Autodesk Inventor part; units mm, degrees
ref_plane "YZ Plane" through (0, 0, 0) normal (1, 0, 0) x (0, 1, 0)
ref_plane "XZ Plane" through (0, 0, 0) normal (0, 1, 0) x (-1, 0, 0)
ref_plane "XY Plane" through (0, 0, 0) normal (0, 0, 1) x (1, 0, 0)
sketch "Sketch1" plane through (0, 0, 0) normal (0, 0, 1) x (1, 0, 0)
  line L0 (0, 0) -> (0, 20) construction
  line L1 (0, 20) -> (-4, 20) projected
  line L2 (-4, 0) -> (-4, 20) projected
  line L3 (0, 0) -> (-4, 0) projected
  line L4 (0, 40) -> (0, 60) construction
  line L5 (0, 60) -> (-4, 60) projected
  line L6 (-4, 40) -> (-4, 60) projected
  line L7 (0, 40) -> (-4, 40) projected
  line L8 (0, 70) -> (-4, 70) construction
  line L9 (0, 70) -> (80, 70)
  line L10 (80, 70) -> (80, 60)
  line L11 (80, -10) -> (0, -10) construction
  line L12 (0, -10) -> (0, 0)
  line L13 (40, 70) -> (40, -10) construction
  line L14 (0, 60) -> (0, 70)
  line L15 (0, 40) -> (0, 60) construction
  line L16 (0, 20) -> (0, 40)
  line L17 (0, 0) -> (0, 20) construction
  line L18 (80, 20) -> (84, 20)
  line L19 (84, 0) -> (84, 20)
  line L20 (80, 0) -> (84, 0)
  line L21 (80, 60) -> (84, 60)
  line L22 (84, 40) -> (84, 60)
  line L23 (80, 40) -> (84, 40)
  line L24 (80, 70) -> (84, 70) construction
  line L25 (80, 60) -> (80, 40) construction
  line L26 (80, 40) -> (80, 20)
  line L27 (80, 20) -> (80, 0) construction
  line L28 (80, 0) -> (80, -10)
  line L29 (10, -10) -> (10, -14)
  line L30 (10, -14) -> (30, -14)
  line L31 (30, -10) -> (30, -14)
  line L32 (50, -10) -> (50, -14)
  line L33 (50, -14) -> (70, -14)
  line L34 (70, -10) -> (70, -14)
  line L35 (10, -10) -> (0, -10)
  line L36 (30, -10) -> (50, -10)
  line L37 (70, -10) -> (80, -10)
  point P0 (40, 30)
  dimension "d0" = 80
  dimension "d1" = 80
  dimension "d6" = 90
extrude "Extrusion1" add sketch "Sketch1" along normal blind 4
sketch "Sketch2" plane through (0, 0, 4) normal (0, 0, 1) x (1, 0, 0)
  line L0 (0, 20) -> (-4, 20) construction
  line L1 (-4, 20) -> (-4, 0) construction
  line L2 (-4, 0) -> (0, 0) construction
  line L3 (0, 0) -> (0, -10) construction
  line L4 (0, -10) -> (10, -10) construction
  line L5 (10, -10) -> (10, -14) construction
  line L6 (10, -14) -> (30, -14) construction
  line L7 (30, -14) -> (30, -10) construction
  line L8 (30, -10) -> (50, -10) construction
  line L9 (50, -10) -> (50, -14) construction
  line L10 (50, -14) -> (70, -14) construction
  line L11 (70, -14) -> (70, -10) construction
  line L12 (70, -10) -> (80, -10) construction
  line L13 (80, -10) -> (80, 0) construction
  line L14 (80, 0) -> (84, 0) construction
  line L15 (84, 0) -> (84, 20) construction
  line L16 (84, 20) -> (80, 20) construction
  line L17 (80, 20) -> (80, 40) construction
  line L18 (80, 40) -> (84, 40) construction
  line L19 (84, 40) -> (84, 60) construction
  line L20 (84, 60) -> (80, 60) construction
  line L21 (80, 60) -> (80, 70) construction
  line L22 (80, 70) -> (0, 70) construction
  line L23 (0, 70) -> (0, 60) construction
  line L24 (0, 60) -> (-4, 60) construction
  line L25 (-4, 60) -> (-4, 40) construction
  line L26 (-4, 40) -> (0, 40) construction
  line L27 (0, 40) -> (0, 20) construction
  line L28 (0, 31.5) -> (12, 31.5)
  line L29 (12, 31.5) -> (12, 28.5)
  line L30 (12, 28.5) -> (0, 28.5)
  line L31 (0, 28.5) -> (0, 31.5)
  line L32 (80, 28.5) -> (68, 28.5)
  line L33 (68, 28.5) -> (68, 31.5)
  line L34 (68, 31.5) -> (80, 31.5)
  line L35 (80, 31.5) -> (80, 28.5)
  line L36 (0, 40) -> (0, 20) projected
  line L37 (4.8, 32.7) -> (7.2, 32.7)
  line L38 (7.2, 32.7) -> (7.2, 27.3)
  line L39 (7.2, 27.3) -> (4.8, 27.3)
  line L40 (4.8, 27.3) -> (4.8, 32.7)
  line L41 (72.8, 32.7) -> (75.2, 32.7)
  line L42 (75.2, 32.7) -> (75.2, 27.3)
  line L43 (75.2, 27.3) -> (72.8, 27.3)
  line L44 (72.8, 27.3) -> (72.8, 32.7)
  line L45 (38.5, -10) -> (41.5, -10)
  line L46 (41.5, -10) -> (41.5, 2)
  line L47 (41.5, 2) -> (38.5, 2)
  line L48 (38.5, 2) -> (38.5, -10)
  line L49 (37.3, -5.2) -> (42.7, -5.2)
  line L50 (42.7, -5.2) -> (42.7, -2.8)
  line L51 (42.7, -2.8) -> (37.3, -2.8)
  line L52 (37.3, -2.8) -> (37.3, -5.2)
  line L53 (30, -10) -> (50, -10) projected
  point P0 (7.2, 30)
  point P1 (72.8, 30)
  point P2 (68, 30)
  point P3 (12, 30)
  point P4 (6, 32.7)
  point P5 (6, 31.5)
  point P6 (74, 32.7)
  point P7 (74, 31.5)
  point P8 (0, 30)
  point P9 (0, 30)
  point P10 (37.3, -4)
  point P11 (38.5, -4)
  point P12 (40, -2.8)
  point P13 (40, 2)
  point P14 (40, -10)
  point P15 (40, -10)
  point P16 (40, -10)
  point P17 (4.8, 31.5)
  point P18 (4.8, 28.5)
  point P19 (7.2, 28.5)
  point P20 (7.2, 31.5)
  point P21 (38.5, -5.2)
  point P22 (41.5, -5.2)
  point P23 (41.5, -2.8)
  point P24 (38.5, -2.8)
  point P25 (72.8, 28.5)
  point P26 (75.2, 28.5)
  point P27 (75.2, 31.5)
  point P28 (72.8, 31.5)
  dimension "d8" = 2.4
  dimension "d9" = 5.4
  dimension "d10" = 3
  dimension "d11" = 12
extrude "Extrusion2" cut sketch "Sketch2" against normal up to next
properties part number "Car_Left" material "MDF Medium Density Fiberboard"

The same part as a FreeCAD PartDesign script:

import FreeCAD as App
import Part
import Sketcher

doc = App.newDocument("Part")
body = doc.addObject("PartDesign::Body", "Body")

# Sketch on XY plane
sketch1 = body.newObject("Sketcher::SketchObject", "Sketch")
sketch1.AttachmentSupport = (doc.getObject("XY_Plane"), [""])
sketch1.MapMode = "FlatFace"
sketch1.addGeometry([
    Part.LineSegment(App.Vector(0, 40, 0), App.Vector(0, 20, 0)),  # 0
    Part.LineSegment(App.Vector(0, 20, 0), App.Vector(-4, 20, 0)),  # 1
    Part.LineSegment(App.Vector(-4, 20, 0), App.Vector(-4, 0, 0)),  # 2
    Part.LineSegment(App.Vector(-4, 0, 0), App.Vector(0, 0, 0)),  # 3
    Part.LineSegment(App.Vector(0, 0, 0), App.Vector(0, -10, 0)),  # 4
    Part.LineSegment(App.Vector(0, -10, 0), App.Vector(10, -10, 0)),  # 5
    Part.LineSegment(App.Vector(10, -10, 0), App.Vector(10, -14, 0)),  # 6
    Part.LineSegment(App.Vector(10, -14, 0), App.Vector(30, -14, 0)),  # 7
    Part.LineSegment(App.Vector(30, -14, 0), App.Vector(30, -10, 0)),  # 8
    Part.LineSegment(App.Vector(30, -10, 0), App.Vector(50, -10, 0)),  # 9
    Part.LineSegment(App.Vector(50, -10, 0), App.Vector(50, -14, 0)),  # 10
    Part.LineSegment(App.Vector(50, -14, 0), App.Vector(70, -14, 0)),  # 11
    Part.LineSegment(App.Vector(70, -14, 0), App.Vector(70, -10, 0)),  # 12
    Part.LineSegment(App.Vector(70, -10, 0), App.Vector(80, -10, 0)),  # 13
    Part.LineSegment(App.Vector(80, -10, 0), App.Vector(80, 0, 0)),  # 14
    Part.LineSegment(App.Vector(80, 0, 0), App.Vector(84, 0, 0)),  # 15
    Part.LineSegment(App.Vector(84, 0, 0), App.Vector(84, 20, 0)),  # 16
    Part.LineSegment(App.Vector(84, 20, 0), App.Vector(80, 20, 0)),  # 17
    Part.LineSegment(App.Vector(80, 20, 0), App.Vector(80, 40, 0)),  # 18
    Part.LineSegment(App.Vector(80, 40, 0), App.Vector(84, 40, 0)),  # 19
    Part.LineSegment(App.Vector(84, 40, 0), App.Vector(84, 60, 0)),  # 20
    Part.LineSegment(App.Vector(84, 60, 0), App.Vector(80, 60, 0)),  # 21
    Part.LineSegment(App.Vector(80, 60, 0), App.Vector(80, 70, 0)),  # 22
    Part.LineSegment(App.Vector(80, 70, 0), App.Vector(0, 70, 0)),  # 23
    Part.LineSegment(App.Vector(0, 70, 0), App.Vector(0, 60, 0)),  # 24
    Part.LineSegment(App.Vector(0, 60, 0), App.Vector(-4, 60, 0)),  # 25
    Part.LineSegment(App.Vector(-4, 60, 0), App.Vector(-4, 40, 0)),  # 26
    Part.LineSegment(App.Vector(-4, 40, 0), App.Vector(0, 40, 0)),  # 27
], False)
sketch1.addConstraint([
    Sketcher.Constraint("Coincident", 0, 2, 1, 1),
    Sketcher.Constraint("Coincident", 1, 2, 2, 1),
    Sketcher.Constraint("Coincident", 2, 2, 3, 1),
    Sketcher.Constraint("Coincident", 3, 2, 4, 1),
    Sketcher.Constraint("Coincident", 4, 2, 5, 1),
    Sketcher.Constraint("Coincident", 5, 2, 6, 1),
    Sketcher.Constraint("Coincident", 6, 2, 7, 1),
    Sketcher.Constraint("Coincident", 7, 2, 8, 1),
    Sketcher.Constraint("Coincident", 8, 2, 9, 1),
    Sketcher.Constraint("Coincident", 9, 2, 10, 1),
    Sketcher.Constraint("Coincident", 10, 2, 11, 1),
    Sketcher.Constraint("Coincident", 11, 2, 12, 1),
    Sketcher.Constraint("Coincident", 12, 2, 13, 1),
    Sketcher.Constraint("Coincident", 13, 2, 14, 1),
    Sketcher.Constraint("Coincident", 14, 2, 15, 1),
    Sketcher.Constraint("Coincident", 15, 2, 16, 1),
    Sketcher.Constraint("Coincident", 16, 2, 17, 1),
    Sketcher.Constraint("Coincident", 17, 2, 18, 1),
    Sketcher.Constraint("Coincident", 18, 2, 19, 1),
    Sketcher.Constraint("Coincident", 19, 2, 20, 1),
    Sketcher.Constraint("Coincident", 20, 2, 21, 1),
    Sketcher.Constraint("Coincident", 21, 2, 22, 1),
    Sketcher.Constraint("Coincident", 22, 2, 23, 1),
    Sketcher.Constraint("Coincident", 23, 2, 24, 1),
    Sketcher.Constraint("Coincident", 24, 2, 25, 1),
    Sketcher.Constraint("Coincident", 25, 2, 26, 1),
    Sketcher.Constraint("Coincident", 26, 2, 27, 1),
    Sketcher.Constraint("Coincident", 27, 2, 0, 1),
    Sketcher.Constraint("Vertical", 0),
    Sketcher.Constraint("Horizontal", 1),
    Sketcher.Constraint("Vertical", 2),
    Sketcher.Constraint("Horizontal", 3),
    Sketcher.Constraint("Vertical", 4),
    Sketcher.Constraint("Horizontal", 5),
    Sketcher.Constraint("Vertical", 6),
    Sketcher.Constraint("Horizontal", 7),
    Sketcher.Constraint("Vertical", 8),
    Sketcher.Constraint("Horizontal", 9),
    Sketcher.Constraint("Vertical", 10),
    Sketcher.Constraint("Horizontal", 11),
    Sketcher.Constraint("Vertical", 12),
    Sketcher.Constraint("Horizontal", 13),
    Sketcher.Constraint("Vertical", 14),
    Sketcher.Constraint("Horizontal", 15),
    Sketcher.Constraint("Vertical", 16),
    Sketcher.Constraint("Horizontal", 17),
    Sketcher.Constraint("Vertical", 18),
    Sketcher.Constraint("Horizontal", 19),
    Sketcher.Constraint("Vertical", 20),
    Sketcher.Constraint("Horizontal", 21),
    Sketcher.Constraint("Vertical", 22),
    Sketcher.Constraint("Horizontal", 23),
    Sketcher.Constraint("Vertical", 24),
    Sketcher.Constraint("Horizontal", 25),
    Sketcher.Constraint("Vertical", 26),
    Sketcher.Constraint("Horizontal", 27),
    Sketcher.Constraint("Coincident", 3, 2, -1, 1),
    Sketcher.Constraint("PointOnObject", 0, 2, -2),
    Sketcher.Constraint("PointOnObject", 14, 2, -1),
    Sketcher.Constraint("PointOnObject", 23, 2, -2),
    Sketcher.Constraint("Horizontal", 5, 2, 8, 2),
    Sketcher.Constraint("Horizontal", 7, 2, 10, 2),
    Sketcher.Constraint("Horizontal", 9, 2, 12, 2),
    Sketcher.Constraint("Horizontal", 1, 2, 16, 2),
    Sketcher.Constraint("Horizontal", 21, 2, 24, 2),
    Sketcher.Constraint("Horizontal", 19, 2, 26, 2),
    Sketcher.Constraint("Vertical", 14, 2, 17, 2),
    Sketcher.Constraint("Vertical", 16, 2, 19, 2),
    Sketcher.Constraint("Vertical", 18, 2, 21, 2),
    Sketcher.Constraint("Vertical", 2, 2, 25, 2),
    Sketcher.Constraint("Equal", 7, 9),
    Sketcher.Constraint("Equal", 9, 11),
    Sketcher.Constraint("Equal", 5, 13),
    Sketcher.Constraint("Equal", 3, 15),
    Sketcher.Constraint("Equal", 11, 0),
    Sketcher.Constraint("Equal", 0, 2),
    Sketcher.Constraint("Equal", 13, 4),
    Sketcher.Constraint("Equal", 27, 6),
    Sketcher.Constraint("Equal", 18, 20),
    Sketcher.Constraint("Equal", 14, 22),
    Sketcher.Constraint("DistanceX", 23, 2, 23, 1, 80.0),
    Sketcher.Constraint("DistanceX", 1, 2, 1, 1, 4.0),
    Sketcher.Constraint("DistanceX", 5, 1, 5, 2, 10.0),
])
pad1 = body.newObject("PartDesign::Pad", "Pad")
pad1.Profile = sketch1
pad1.Length = 4

# Sketch on XY plane
sketch2 = body.newObject("Sketcher::SketchObject", "Sketch001")
sketch2.AttachmentSupport = (doc.getObject("XY_Plane"), [""])
sketch2.MapMode = "FlatFace"
sketch2.AttachmentOffset = App.Placement(App.Vector(0, 0, 4), App.Rotation())
sketch2.addGeometry([
    Part.LineSegment(App.Vector(4.8, 31.5, 0), App.Vector(0, 31.5, 0)),  # 0
    Part.LineSegment(App.Vector(0, 31.5, 0), App.Vector(0, 28.5, 0)),  # 1
    Part.LineSegment(App.Vector(0, 28.5, 0), App.Vector(4.8, 28.5, 0)),  # 2
    Part.LineSegment(App.Vector(4.8, 28.5, 0), App.Vector(4.8, 27.3, 0)),  # 3
    Part.LineSegment(App.Vector(4.8, 27.3, 0), App.Vector(7.2, 27.3, 0)),  # 4
    Part.LineSegment(App.Vector(7.2, 27.3, 0), App.Vector(7.2, 28.5, 0)),  # 5
    Part.LineSegment(App.Vector(7.2, 28.5, 0), App.Vector(12, 28.5, 0)),  # 6
    Part.LineSegment(App.Vector(12, 28.5, 0), App.Vector(12, 31.5, 0)),  # 7
    Part.LineSegment(App.Vector(12, 31.5, 0), App.Vector(7.2, 31.5, 0)),  # 8
    Part.LineSegment(App.Vector(7.2, 31.5, 0), App.Vector(7.2, 32.7, 0)),  # 9
    Part.LineSegment(App.Vector(7.2, 32.7, 0), App.Vector(4.8, 32.7, 0)),  # 10
    Part.LineSegment(App.Vector(4.8, 32.7, 0), App.Vector(4.8, 31.5, 0)),  # 11
    Part.LineSegment(App.Vector(75.2, 28.5, 0), App.Vector(80, 28.5, 0)),  # 12
    Part.LineSegment(App.Vector(80, 28.5, 0), App.Vector(80, 31.5, 0)),  # 13
    Part.LineSegment(App.Vector(80, 31.5, 0), App.Vector(75.2, 31.5, 0)),  # 14
    Part.LineSegment(App.Vector(75.2, 31.5, 0), App.Vector(75.2, 32.7, 0)),  # 15
    Part.LineSegment(App.Vector(75.2, 32.7, 0), App.Vector(72.8, 32.7, 0)),  # 16
    Part.LineSegment(App.Vector(72.8, 32.7, 0), App.Vector(72.8, 31.5, 0)),  # 17
    Part.LineSegment(App.Vector(72.8, 31.5, 0), App.Vector(68, 31.5, 0)),  # 18
    Part.LineSegment(App.Vector(68, 31.5, 0), App.Vector(68, 28.5, 0)),  # 19
    Part.LineSegment(App.Vector(68, 28.5, 0), App.Vector(72.8, 28.5, 0)),  # 20
    Part.LineSegment(App.Vector(72.8, 28.5, 0), App.Vector(72.8, 27.3, 0)),  # 21
    Part.LineSegment(App.Vector(72.8, 27.3, 0), App.Vector(75.2, 27.3, 0)),  # 22
    Part.LineSegment(App.Vector(75.2, 27.3, 0), App.Vector(75.2, 28.5, 0)),  # 23
    Part.LineSegment(App.Vector(38.5, -5.2, 0), App.Vector(38.5, -10, 0)),  # 24
    Part.LineSegment(App.Vector(38.5, -10, 0), App.Vector(41.5, -10, 0)),  # 25
    Part.LineSegment(App.Vector(41.5, -10, 0), App.Vector(41.5, -5.2, 0)),  # 26
    Part.LineSegment(App.Vector(41.5, -5.2, 0), App.Vector(42.7, -5.2, 0)),  # 27
    Part.LineSegment(App.Vector(42.7, -5.2, 0), App.Vector(42.7, -2.8, 0)),  # 28
    Part.LineSegment(App.Vector(42.7, -2.8, 0), App.Vector(41.5, -2.8, 0)),  # 29
    Part.LineSegment(App.Vector(41.5, -2.8, 0), App.Vector(41.5, 2, 0)),  # 30
    Part.LineSegment(App.Vector(41.5, 2, 0), App.Vector(38.5, 2, 0)),  # 31
    Part.LineSegment(App.Vector(38.5, 2, 0), App.Vector(38.5, -2.8, 0)),  # 32
    Part.LineSegment(App.Vector(38.5, -2.8, 0), App.Vector(37.3, -2.8, 0)),  # 33
    Part.LineSegment(App.Vector(37.3, -2.8, 0), App.Vector(37.3, -5.2, 0)),  # 34
    Part.LineSegment(App.Vector(37.3, -5.2, 0), App.Vector(38.5, -5.2, 0)),  # 35
], False)
sketch2.addConstraint([
    Sketcher.Constraint("Coincident", 0, 2, 1, 1),
    Sketcher.Constraint("Coincident", 1, 2, 2, 1),
    Sketcher.Constraint("Coincident", 2, 2, 3, 1),
    Sketcher.Constraint("Coincident", 3, 2, 4, 1),
    Sketcher.Constraint("Coincident", 4, 2, 5, 1),
    Sketcher.Constraint("Coincident", 5, 2, 6, 1),
    Sketcher.Constraint("Coincident", 6, 2, 7, 1),
    Sketcher.Constraint("Coincident", 7, 2, 8, 1),
    Sketcher.Constraint("Coincident", 8, 2, 9, 1),
    Sketcher.Constraint("Coincident", 9, 2, 10, 1),
    Sketcher.Constraint("Coincident", 10, 2, 11, 1),
    Sketcher.Constraint("Coincident", 11, 2, 0, 1),
    Sketcher.Constraint("Coincident", 12, 2, 13, 1),
    Sketcher.Constraint("Coincident", 13, 2, 14, 1),
    Sketcher.Constraint("Coincident", 14, 2, 15, 1),
    Sketcher.Constraint("Coincident", 15, 2, 16, 1),
    Sketcher.Constraint("Coincident", 16, 2, 17, 1),
    Sketcher.Constraint("Coincident", 17, 2, 18, 1),
    Sketcher.Constraint("Coincident", 18, 2, 19, 1),
    Sketcher.Constraint("Coincident", 19, 2, 20, 1),
    Sketcher.Constraint("Coincident", 20, 2, 21, 1),
    Sketcher.Constraint("Coincident", 21, 2, 22, 1),
    Sketcher.Constraint("Coincident", 22, 2, 23, 1),
    Sketcher.Constraint("Coincident", 23, 2, 12, 1),
    Sketcher.Constraint("Coincident", 24, 2, 25, 1),
    Sketcher.Constraint("Coincident", 25, 2, 26, 1),
    Sketcher.Constraint("Coincident", 26, 2, 27, 1),
    Sketcher.Constraint("Coincident", 27, 2, 28, 1),
    Sketcher.Constraint("Coincident", 28, 2, 29, 1),
    Sketcher.Constraint("Coincident", 29, 2, 30, 1),
    Sketcher.Constraint("Coincident", 30, 2, 31, 1),
    Sketcher.Constraint("Coincident", 31, 2, 32, 1),
    Sketcher.Constraint("Coincident", 32, 2, 33, 1),
    Sketcher.Constraint("Coincident", 33, 2, 34, 1),
    Sketcher.Constraint("Coincident", 34, 2, 35, 1),
    Sketcher.Constraint("Coincident", 35, 2, 24, 1),
    Sketcher.Constraint("Horizontal", 0),
    Sketcher.Constraint("Vertical", 1),
    Sketcher.Constraint("Horizontal", 2),
    Sketcher.Constraint("Vertical", 3),
    Sketcher.Constraint("Horizontal", 4),
    Sketcher.Constraint("Vertical", 5),
    Sketcher.Constraint("Horizontal", 6),
    Sketcher.Constraint("Vertical", 7),
    Sketcher.Constraint("Horizontal", 8),
    Sketcher.Constraint("Vertical", 9),
    Sketcher.Constraint("Horizontal", 10),
    Sketcher.Constraint("Vertical", 11),
    Sketcher.Constraint("Horizontal", 12),
    Sketcher.Constraint("Vertical", 13),
    Sketcher.Constraint("Horizontal", 14),
    Sketcher.Constraint("Vertical", 15),
    Sketcher.Constraint("Horizontal", 16),
    Sketcher.Constraint("Vertical", 17),
    Sketcher.Constraint("Horizontal", 18),
    Sketcher.Constraint("Vertical", 19),
    Sketcher.Constraint("Horizontal", 20),
    Sketcher.Constraint("Vertical", 21),
    Sketcher.Constraint("Horizontal", 22),
    Sketcher.Constraint("Vertical", 23),
    Sketcher.Constraint("Vertical", 24),
    Sketcher.Constraint("Horizontal", 25),
    Sketcher.Constraint("Vertical", 26),
    Sketcher.Constraint("Horizontal", 27),
    Sketcher.Constraint("Vertical", 28),
    Sketcher.Constraint("Horizontal", 29),
    Sketcher.Constraint("Vertical", 30),
    Sketcher.Constraint("Horizontal", 31),
    Sketcher.Constraint("Vertical", 32),
    Sketcher.Constraint("Horizontal", 33),
    Sketcher.Constraint("Vertical", 34),
    Sketcher.Constraint("Horizontal", 35),
    Sketcher.Constraint("PointOnObject", 0, 2, -2),
    Sketcher.Constraint("Horizontal", 2, 2, 5, 2),
    Sketcher.Constraint("Horizontal", 0, 2, 7, 2),
    Sketcher.Constraint("Horizontal", 6, 2, 12, 2),
    Sketcher.Constraint("Horizontal", 11, 2, 13, 2),
    Sketcher.Constraint("Horizontal", 10, 2, 15, 2),
    Sketcher.Constraint("Horizontal", 14, 2, 17, 2),
    Sketcher.Constraint("Horizontal", 12, 2, 19, 2),
    Sketcher.Constraint("Horizontal", 4, 2, 21, 2),
    Sketcher.Constraint("Horizontal", 29, 2, 32, 2),
    Sketcher.Constraint("Horizontal", 27, 2, 34, 2),
    Sketcher.Constraint("Vertical", 5, 2, 8, 2),
    Sketcher.Constraint("Vertical", 3, 2, 10, 2),
    Sketcher.Constraint("Vertical", 17, 2, 20, 2),
    Sketcher.Constraint("Vertical", 15, 2, 22, 2),
    Sketcher.Constraint("Vertical", 26, 2, 29, 2),
    Sketcher.Constraint("Vertical", 24, 2, 31, 2),
    Sketcher.Constraint("Equal", 2, 6),
    Sketcher.Constraint("Equal", 8, 12),
    Sketcher.Constraint("Equal", 10, 16),
    Sketcher.Constraint("Equal", 14, 18),
    Sketcher.Constraint("Equal", 29, 33),
    Sketcher.Constraint("Equal", 31, 1),
    Sketcher.Constraint("Equal", 35, 3),
    Sketcher.Constraint("Equal", 5, 9),
    Sketcher.Constraint("Equal", 20, 24),
    Sketcher.Constraint("Equal", 22, 28),
    Sketcher.Constraint("Equal", 26, 30),
    Sketcher.Constraint("DistanceX", 25, 1, 25, 2, 3.0),
    Sketcher.Constraint("DistanceX", 4, 1, 4, 2, 2.4),
    Sketcher.Constraint("DistanceX", -1, 1, 6, 2, 12.0),
    Sketcher.Constraint("DistanceY", 4, 2, 9, 2, 5.4),
    Sketcher.Constraint("DistanceX", -1, 1, 12, 2, 80.0),
    Sketcher.Constraint("DistanceY", 24, 2, -1, 1, 10.0),
    Sketcher.Constraint("DistanceY", -1, 1, 0, 2, 31.5),
    Sketcher.Constraint("DistanceX", -1, 1, 24, 2, 38.5),
])
pocket1 = body.newObject("PartDesign::Pocket", "Pocket")
pocket1.Profile = sketch2
pocket1.Type = "UpToFirst"

doc.recompute()
